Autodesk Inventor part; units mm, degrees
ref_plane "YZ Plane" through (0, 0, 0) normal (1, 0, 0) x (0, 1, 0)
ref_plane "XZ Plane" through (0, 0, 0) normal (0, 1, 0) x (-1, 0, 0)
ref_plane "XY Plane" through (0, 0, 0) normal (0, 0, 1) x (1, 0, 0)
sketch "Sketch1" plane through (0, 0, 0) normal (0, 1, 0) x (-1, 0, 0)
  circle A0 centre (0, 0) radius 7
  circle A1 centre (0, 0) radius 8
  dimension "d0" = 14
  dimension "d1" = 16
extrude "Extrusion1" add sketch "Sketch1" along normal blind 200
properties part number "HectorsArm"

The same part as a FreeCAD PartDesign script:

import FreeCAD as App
import Part
import Sketcher

doc = App.newDocument("Part")
body = doc.addObject("PartDesign::Body", "Body")

sketch1 = body.newObject("Sketcher::SketchObject", "Sketch")
sketch1.AttachmentSupport = (doc.getObject("XZ_Plane"), [""])
sketch1.MapMode = "FlatFace"
sketch1.addGeometry([
    Part.Circle(App.Vector(0, 0, 0), App.Vector(0, 0, 1), 8),
    Part.Circle(App.Vector(0, 0, 0), App.Vector(0, 0, 1), 7),
], False)
sketch1.addConstraint([
    Sketcher.Constraint("Coincident", 0, 3, -1, 1),
    Sketcher.Constraint("Coincident", 1, 3, -1, 1),
    Sketcher.Constraint("Diameter", 0, 16.0),
    Sketcher.Constraint("Diameter", 1, 14.0),
])
pad1 = body.newObject("PartDesign::Pad", "Pad")
pad1.Profile = sketch1
pad1.Length = 200
pad1.Reversed = True

doc.recompute()
